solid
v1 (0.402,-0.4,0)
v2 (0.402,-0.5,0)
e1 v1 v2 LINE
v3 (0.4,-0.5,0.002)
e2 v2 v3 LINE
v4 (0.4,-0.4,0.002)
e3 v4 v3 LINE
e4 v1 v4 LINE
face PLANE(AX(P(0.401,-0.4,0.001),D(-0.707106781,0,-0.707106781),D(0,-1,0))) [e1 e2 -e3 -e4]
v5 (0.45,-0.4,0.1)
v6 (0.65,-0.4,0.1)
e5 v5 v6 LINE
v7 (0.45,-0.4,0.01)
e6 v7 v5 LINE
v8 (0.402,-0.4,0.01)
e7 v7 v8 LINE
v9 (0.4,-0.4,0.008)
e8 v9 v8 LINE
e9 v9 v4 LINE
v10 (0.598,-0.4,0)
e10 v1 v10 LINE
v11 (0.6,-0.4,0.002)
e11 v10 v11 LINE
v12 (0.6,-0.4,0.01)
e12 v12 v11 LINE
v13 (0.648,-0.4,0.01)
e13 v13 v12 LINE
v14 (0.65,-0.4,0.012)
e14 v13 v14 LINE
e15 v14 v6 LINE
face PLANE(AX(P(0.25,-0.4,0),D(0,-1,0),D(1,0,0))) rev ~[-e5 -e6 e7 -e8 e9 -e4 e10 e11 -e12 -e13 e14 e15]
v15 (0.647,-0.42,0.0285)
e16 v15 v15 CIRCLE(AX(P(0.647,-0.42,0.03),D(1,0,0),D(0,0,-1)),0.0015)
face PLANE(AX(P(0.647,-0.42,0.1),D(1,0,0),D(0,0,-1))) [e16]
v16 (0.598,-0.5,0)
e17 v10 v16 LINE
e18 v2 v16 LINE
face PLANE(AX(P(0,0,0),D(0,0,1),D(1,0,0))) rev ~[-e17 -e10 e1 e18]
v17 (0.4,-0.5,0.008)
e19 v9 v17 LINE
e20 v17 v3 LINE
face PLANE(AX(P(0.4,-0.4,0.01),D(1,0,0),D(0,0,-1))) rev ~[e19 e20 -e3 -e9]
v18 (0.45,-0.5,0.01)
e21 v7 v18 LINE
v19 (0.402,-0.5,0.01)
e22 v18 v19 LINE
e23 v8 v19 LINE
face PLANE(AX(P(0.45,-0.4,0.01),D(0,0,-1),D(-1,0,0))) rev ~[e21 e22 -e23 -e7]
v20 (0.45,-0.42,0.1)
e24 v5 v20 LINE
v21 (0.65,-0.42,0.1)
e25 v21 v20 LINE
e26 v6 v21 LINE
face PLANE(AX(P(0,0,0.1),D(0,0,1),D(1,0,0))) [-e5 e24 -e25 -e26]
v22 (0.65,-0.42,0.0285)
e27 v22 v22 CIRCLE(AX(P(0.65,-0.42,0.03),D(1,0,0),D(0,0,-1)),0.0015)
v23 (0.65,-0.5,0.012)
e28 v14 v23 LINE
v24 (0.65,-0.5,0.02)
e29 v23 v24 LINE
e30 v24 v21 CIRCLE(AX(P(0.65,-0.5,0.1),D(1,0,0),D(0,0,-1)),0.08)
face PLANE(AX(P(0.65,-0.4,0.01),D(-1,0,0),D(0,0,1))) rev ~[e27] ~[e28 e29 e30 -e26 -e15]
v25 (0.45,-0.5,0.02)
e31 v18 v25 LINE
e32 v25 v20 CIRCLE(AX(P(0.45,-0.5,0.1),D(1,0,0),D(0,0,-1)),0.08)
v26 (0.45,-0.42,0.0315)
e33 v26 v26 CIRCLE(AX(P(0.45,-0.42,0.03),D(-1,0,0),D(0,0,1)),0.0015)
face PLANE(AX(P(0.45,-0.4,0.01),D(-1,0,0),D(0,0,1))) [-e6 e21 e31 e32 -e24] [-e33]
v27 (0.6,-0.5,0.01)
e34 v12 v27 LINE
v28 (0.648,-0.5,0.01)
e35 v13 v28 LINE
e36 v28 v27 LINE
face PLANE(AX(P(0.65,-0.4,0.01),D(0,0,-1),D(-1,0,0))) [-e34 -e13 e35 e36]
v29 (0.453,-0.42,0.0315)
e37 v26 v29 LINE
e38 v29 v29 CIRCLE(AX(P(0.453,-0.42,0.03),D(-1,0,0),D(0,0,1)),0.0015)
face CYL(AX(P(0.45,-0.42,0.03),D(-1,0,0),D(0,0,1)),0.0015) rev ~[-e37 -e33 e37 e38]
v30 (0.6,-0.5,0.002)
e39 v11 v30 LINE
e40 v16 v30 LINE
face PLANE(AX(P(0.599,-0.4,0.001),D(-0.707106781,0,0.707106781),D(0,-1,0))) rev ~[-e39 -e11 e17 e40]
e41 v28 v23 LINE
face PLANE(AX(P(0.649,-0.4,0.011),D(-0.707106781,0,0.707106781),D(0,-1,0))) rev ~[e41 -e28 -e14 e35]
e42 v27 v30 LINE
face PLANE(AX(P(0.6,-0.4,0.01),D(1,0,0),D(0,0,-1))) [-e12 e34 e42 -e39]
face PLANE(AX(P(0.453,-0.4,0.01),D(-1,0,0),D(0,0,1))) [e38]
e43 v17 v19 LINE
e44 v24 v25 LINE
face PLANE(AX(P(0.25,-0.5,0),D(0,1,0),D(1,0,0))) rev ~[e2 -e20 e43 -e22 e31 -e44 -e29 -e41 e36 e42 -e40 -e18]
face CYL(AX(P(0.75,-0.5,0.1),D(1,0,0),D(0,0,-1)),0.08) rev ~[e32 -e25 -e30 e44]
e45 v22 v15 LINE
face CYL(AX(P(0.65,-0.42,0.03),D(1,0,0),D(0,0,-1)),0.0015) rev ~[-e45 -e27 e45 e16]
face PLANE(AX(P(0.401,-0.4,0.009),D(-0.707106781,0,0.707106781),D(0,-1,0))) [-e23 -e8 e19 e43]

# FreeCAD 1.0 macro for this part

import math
import FreeCAD as App
import Part
import Sketcher
from FreeCAD import Vector


def edges_at(feature, points):
    """Names of the edges that pass closest to the given points."""
    edges = feature.Shape.Edges
    near = lambda p: min(range(len(edges)), key=lambda i: edges[i].distToShape(Part.Vertex(*p))[0])
    return sorted({f"Edge{near(p) + 1}" for p in points})


def add_polygon(sketch, points):
    """Adds a closed chain of lines whose ends are joined by coincident constraints."""
    first, n = sketch.GeometryCount, len(points)
    for a, b in zip(points, points[1:] + points[:1]):
        sketch.addGeometry(Part.LineSegment(App.Vector(*a, 0), App.Vector(*b, 0)), False)
    for i in range(n):
        sketch.addConstraint(Sketcher.Constraint("Coincident", first + i, 2, first + (i + 1) % n, 1))

doc = App.newDocument("Part")
body = doc.addObject("PartDesign::Body", "Body")

sketch1 = body.newObject("Sketcher::SketchObject", "Sketch")
sketch1.AttachmentSupport = (doc.getObject("XY_Plane"), [""])
sketch1.MapMode = "FlatFace"
add_polygon(sketch1, [(0.2, 0.5), (0.2, -0.5), (0.8, -0.5), (0.8, 0.5)])
sketch1.addConstraint(Sketcher.Constraint("Vertical", 0))
sketch1.addConstraint(Sketcher.Constraint("Horizontal", 1))
sketch1.addConstraint(Sketcher.Constraint("Vertical", 2))
sketch1.addConstraint(Sketcher.Constraint("Horizontal", 3))
sketch1.addConstraint(Sketcher.Constraint("DistanceY", 0, 2, 0, 1, 1.0))
sketch1.addConstraint(Sketcher.Constraint("DistanceX", 1, 1, 1, 2, 0.5))
sketch1.addConstraint(Sketcher.Constraint("DistanceY", 0, 2, -1, 1, 0.5))
sketch1.addConstraint(Sketcher.Constraint("DistanceX", -1, 1, 0, 2, 0.25))
pad1 = body.newObject("PartDesign::Pad", "Pad")
pad1.Profile = sketch1
pad1.Length = 0.1

sketch2 = body.newObject("Sketcher::SketchObject", "Sketch001")
sketch2.AttachmentSupport = (doc.getObject("YZ_Plane"), [""])
sketch2.MapMode = "FlatFace"
sketch2.AttachmentOffset = App.Placement(Vector(0, 0, 0.75), App.Rotation())
sketch2.addGeometry(Part.LineSegment(Vector(-0.5, 0.1, 0), Vector(-0.5, 0.02, 0)), False)
sketch2.addGeometry(Part.ArcOfCircle(Part.Circle(Vector(-0.5, 0.1, 0), Vector(0, 0, 1), 0.08), math.radians(-90), math.radians(0)), False)
sketch2.addGeometry(Part.LineSegment(Vector(-0.42, 0.1, 0), Vector(-0.5, 0.1, 0)), False)
sketch2.addGeometry(Part.LineSegment(Vector(0.5, 0.1, 0), Vector(0.42, 0.1, 0)), False)
sketch2.addGeometry(Part.ArcOfCircle(Part.Circle(Vector(0.5, 0.1, 0), Vector(0, 0, 1), 0.08), math.radians(180), math.radians(270)), False)
sketch2.addGeometry(Part.LineSegment(Vector(0.5, 0.02, 0), Vector(0.5, 0.1, 0)), False)
sketch2.addConstraint(Sketcher.Constraint("Coincident", 0, 2, 1, 1))
sketch2.addConstraint(Sketcher.Constraint("Coincident", 1, 2, 2, 1))
sketch2.addConstraint(Sketcher.Constraint("Coincident", 2, 2, 0, 1))
sketch2.addConstraint(Sketcher.Constraint("Coincident", 3, 2, 4, 1))
sketch2.addConstraint(Sketcher.Constraint("Coincident", 4, 2, 5, 1))
sketch2.addConstraint(Sketcher.Constraint("Coincident", 5, 2, 3, 1))
sketch2.addConstraint(Sketcher.Constraint("Vertical", 0))
sketch2.addConstraint(Sketcher.Constraint("Horizontal", 2))
sketch2.addConstraint(Sketcher.Constraint("Horizontal", 3))
sketch2.addConstraint(Sketcher.Constraint("Vertical", 5))
sketch2.addConstraint(Sketcher.Constraint("Coincident", 2, 2, 1, 3))
sketch2.addConstraint(Sketcher.Constraint("Coincident", 5, 2, 4, 3))
sketch2.addConstraint(Sketcher.Constraint("Equal", 1, 4))
sketch2.addConstraint(Sketcher.Constraint("Symmetric", 1, 3, 4, 3, -2))
sketch2.addConstraint(Sketcher.Constraint("DistanceX", 1, 2, -1, 1, 0.42))
sketch2.addConstraint(Sketcher.Constraint("Radius", 1, 0.08))
sketch2.addConstraint(Sketcher.Constraint("DistanceY", -1, 1, 1, 3, 0.1))
pocket1 = body.newObject("PartDesign::Pocket", "Pocket")
pocket1.Profile = sketch2
pocket1.Length = 0.5

sketch3 = body.newObject("Sketcher::SketchObject", "Sketch002")
sketch3.AttachmentSupport = (doc.getObject("XZ_Plane"), [""])
sketch3.MapMode = "FlatFace"
sketch3.AttachmentOffset = App.Placement(Vector(0, 0, 0.4), App.Rotation())
add_polygon(sketch3, [(0.25, 0.1), (0.25, 0), (0.75, 0), (0.75, 0.1)])
sketch3.addConstraint(Sketcher.Constraint("Vertical", 0))
sketch3.addConstraint(Sketcher.Constraint("Horizontal", 1))
sketch3.addConstraint(Sketcher.Constraint("Vertical", 2))
sketch3.addConstraint(Sketcher.Constraint("Horizontal", 3))
sketch3.addConstraint(Sketcher.Constraint("PointOnObject", 0, 2, -1))
sketch3.addConstraint(Sketcher.Constraint("DistanceX", 1, 1, 1, 2, 0.5))
sketch3.addConstraint(Sketcher.Constraint("DistanceY", 0, 2, 0, 1, 0.1))
sketch3.addConstraint(Sketcher.Constraint("DistanceX", -1, 1, 0, 2, 0.25))
pocket2 = body.newObject("PartDesign::Pocket", "Pocket001")
pocket2.Profile = sketch3
pocket2.Length = 10

sketch4 = body.newObject("Sketcher::SketchObject", "Sketch003")
sketch4.AttachmentSupport = (doc.getObject("XZ_Plane"), [""])
sketch4.MapMode = "FlatFace"
sketch4.AttachmentOffset = App.Placement(Vector(0, 0, 0.4), App.Rotation())
add_polygon(sketch4, [(0.75, 0.1), (0.75, 0), (0.6, 0), (0.6, 0.01), (0.65, 0.01), (0.65, 0.1)])
add_polygon(sketch4, [(0.4, 0.01), (0.4, 0), (0.25, 0), (0.25, 0.1), (0.45, 0.1), (0.45, 0.01)])
sketch4.addConstraint(Sketcher.Constraint("Vertical", 0))
sketch4.addConstraint(Sketcher.Constraint("Horizontal", 1))
sketch4.addConstraint(Sketcher.Constraint("Vertical", 2))
sketch4.addConstraint(Sketcher.Constraint("Horizontal", 3))
sketch4.addConstraint(Sketcher.Constraint("Vertical", 4))
sketch4.addConstraint(Sketcher.Constraint("Horizontal", 5))
sketch4.addConstraint(Sketcher.Constraint("Vertical", 6))
sketch4.addConstraint(Sketcher.Constraint("Horizontal", 7))
sketch4.addConstraint(Sketcher.Constraint("Vertical", 8))
sketch4.addConstraint(Sketcher.Constraint("Horizontal", 9))
sketch4.addConstraint(Sketcher.Constraint("Vertical", 10))
sketch4.addConstraint(Sketcher.Constraint("Horizontal", 11))
sketch4.addConstraint(Sketcher.Constraint("PointOnObject", 0, 2, -1))
sketch4.addConstraint(Sketcher.Constraint("PointOnObject", 6, 2, -1))
sketch4.addConstraint(Sketcher.Constraint("Horizontal", 5, 2, 8, 2))
sketch4.addConstraint(Sketcher.Constraint("Horizontal", 3, 2, 10, 2))
sketch4.addConstraint(Sketcher.Constraint("Equal", 1, 7))
sketch4.addConstraint(Sketcher.Constraint("Equal", 3, 11))
sketch4.addConstraint(Sketcher.Constraint("Equal", 5, 0))
sketch4.addConstraint(Sketcher.Constraint("DistanceX", 9, 1, 9, 2, 0.2))
sketch4.addConstraint(Sketcher.Constraint("DistanceX", 3, 1, 3, 2, 0.05))
sketch4.addConstraint(Sketcher.Constraint("DistanceY", 2, 1, 2, 2, 0.01))
sketch4.addConstraint(Sketcher.Constraint("DistanceX", 6, 2, 1, 2, 0.2))
sketch4.addConstraint(Sketcher.Constraint("DistanceX", -1, 1, 1, 2, 0.6))
pocket3 = body.newObject("PartDesign::Pocket", "Pocket002")
pocket3.Profile = sketch4
pocket3.Type = "ThroughAll"
pocket3.Reversed = True
doc.recompute()

chamfer = body.newObject("PartDesign::Chamfer", "Chamfer")
chamfer.Base = (pocket3, edges_at(pocket3, [(0.4, -0.45, 0), (0.4, -0.45, 0.01)]))
chamfer.Size = 0.002
doc.recompute()

chamfer2 = body.newObject("PartDesign::Chamfer", "Chamfer001")
chamfer2.Base = (chamfer, edges_at(chamfer, [(0.65, -0.45, 0.01), (0.6, -0.45, 0)]))
chamfer2.Size = 0.002

sketch5 = body.newObject("Sketcher::SketchObject", "Sketch004")
sketch5.AttachmentSupport = (doc.getObject("YZ_Plane"), [""])
sketch5.MapMode = "FlatFace"
sketch5.AttachmentOffset = App.Placement(Vector(0, 0, 0.65), App.Rotation())
sketch5.addGeometry(Part.Circle(Vector(-0.42, 0.03, 0), Vector(0, 0, 1), 0.0015), False)
sketch5.addConstraint(Sketcher.Constraint("Diameter", 0, 0.003))
sketch5.addConstraint(Sketcher.Constraint("DistanceX", 0, 3, -1, 1, 0.42))
sketch5.addConstraint(Sketcher.Constraint("DistanceY", -1, 1, 0, 3, 0.03))
pocket4 = body.newObject("PartDesign::Pocket", "Pocket003")
pocket4.Profile = sketch5
pocket4.Length = 0.003

sketch6 = body.newObject("Sketcher::SketchObject", "Sketch005")
sketch6.AttachmentSupport = (doc.getObject("YZ_Plane"), [""])
sketch6.MapMode = "FlatFace"
sketch6.AttachmentOffset = App.Placement(Vector(0, 0, 0.45), App.Rotation())
sketch6.addGeometry(Part.Circle(Vector(-0.42, 0.03, 0), Vector(0, 0, 1), 0.0015), False)
sketch6.addConstraint(Sketcher.Constraint("Diameter", 0, 0.003))
sketch6.addConstraint(Sketcher.Constraint("DistanceX", 0, 3, -1, 1, 0.42))
sketch6.addConstraint(Sketcher.Constraint("DistanceY", -1, 1, 0, 3, 0.03))
pocket5 = body.newObject("PartDesign::Pocket", "Pocket004")
pocket5.Profile = sketch6
pocket5.Length = 0.003
pocket5.Reversed = True

doc.recompute()
